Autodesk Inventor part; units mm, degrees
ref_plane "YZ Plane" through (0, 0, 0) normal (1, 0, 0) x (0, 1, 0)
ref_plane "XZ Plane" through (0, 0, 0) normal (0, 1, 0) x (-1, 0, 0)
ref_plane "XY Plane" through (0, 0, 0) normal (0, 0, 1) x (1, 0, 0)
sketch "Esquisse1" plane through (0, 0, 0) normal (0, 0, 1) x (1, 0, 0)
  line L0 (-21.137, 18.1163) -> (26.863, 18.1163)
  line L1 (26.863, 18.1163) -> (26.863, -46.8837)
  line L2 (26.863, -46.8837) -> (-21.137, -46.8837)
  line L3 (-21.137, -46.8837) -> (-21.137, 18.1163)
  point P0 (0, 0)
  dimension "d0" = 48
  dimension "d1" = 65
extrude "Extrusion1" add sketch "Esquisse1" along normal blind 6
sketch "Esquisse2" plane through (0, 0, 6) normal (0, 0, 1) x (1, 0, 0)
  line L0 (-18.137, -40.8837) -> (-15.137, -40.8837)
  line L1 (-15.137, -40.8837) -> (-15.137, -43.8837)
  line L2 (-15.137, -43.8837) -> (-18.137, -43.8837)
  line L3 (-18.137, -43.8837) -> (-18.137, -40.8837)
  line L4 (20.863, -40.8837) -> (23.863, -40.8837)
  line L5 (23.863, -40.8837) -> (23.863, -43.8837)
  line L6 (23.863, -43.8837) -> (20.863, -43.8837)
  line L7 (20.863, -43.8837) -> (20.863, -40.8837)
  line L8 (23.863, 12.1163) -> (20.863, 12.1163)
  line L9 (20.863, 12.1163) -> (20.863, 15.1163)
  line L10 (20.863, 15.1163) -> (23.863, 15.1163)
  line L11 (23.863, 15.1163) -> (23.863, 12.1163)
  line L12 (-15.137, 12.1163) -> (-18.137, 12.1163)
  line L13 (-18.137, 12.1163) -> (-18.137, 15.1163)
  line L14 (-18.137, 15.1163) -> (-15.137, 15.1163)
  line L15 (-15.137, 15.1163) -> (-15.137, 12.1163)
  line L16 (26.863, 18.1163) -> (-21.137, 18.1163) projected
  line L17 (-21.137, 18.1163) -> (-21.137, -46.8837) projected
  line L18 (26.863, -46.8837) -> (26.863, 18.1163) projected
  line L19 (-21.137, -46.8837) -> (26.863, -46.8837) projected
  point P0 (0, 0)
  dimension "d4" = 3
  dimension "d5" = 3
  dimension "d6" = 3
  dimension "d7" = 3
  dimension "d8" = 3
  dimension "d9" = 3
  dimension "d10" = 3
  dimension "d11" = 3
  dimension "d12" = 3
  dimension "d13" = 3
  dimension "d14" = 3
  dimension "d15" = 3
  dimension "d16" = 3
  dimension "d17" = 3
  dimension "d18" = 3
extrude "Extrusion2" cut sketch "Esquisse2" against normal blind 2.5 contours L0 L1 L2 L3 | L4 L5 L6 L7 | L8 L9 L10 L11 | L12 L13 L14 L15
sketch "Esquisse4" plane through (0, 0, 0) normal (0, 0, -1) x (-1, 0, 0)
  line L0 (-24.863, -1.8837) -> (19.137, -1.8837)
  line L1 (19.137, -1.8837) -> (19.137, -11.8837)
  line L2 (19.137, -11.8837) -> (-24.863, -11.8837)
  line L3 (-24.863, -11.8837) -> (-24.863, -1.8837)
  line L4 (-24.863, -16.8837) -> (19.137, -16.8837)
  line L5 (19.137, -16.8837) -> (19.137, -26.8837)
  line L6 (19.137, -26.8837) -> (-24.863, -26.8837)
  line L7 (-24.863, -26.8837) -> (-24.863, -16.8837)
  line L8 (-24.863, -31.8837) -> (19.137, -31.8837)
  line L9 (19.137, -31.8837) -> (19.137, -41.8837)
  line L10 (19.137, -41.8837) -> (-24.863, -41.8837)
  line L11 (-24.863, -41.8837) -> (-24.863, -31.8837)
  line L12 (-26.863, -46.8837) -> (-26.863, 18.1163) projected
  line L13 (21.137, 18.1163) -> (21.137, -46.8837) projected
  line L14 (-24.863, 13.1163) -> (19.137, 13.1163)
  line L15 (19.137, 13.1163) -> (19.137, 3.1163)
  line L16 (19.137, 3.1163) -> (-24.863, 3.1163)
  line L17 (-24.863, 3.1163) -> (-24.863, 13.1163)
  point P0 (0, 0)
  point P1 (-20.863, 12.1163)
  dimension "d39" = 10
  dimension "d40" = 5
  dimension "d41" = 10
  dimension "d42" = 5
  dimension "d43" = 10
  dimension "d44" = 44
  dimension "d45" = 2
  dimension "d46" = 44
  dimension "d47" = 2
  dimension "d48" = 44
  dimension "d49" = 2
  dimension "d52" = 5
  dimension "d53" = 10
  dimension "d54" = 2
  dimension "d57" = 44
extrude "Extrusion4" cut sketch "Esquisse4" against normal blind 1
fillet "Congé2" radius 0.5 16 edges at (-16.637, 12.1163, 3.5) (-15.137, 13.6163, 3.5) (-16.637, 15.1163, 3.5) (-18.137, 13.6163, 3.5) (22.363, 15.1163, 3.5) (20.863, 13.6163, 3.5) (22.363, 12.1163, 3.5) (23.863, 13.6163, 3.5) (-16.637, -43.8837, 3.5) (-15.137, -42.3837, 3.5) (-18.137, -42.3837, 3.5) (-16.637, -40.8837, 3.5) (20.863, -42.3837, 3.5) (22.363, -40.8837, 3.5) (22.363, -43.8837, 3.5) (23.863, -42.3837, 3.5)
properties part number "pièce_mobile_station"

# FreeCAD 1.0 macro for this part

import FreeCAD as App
import Part
import Sketcher
from FreeCAD import Vector
Q = App.Units.Quantity


def edges_at(feature, points):
    """Names of the edges that pass closest to the given points."""
    edges = feature.Shape.Edges
    near = lambda p: min(range(len(edges)), key=lambda i: edges[i].distToShape(Part.Vertex(*p))[0])
    return sorted({f"Edge{near(p) + 1}" for p in points})

doc = App.newDocument("Part")
body = doc.addObject("PartDesign::Body", "Body")

sketch1 = body.newObject("Sketcher::SketchObject", "Sketch")
sketch1.AttachmentSupport = (doc.getObject("XY_Plane"), [""])
sketch1.MapMode = "FlatFace"
sketch1.addGeometry(Part.LineSegment(Vector(27, 18, 0), Vector(-21, 18, 0)), False)
sketch1.addGeometry(Part.LineSegment(Vector(-21, 18, 0), Vector(-21, -47, 0)), False)
sketch1.addGeometry(Part.LineSegment(Vector(-21, -47, 0), Vector(27, -47, 0)), False)
sketch1.addGeometry(Part.LineSegment(Vector(27, -47, 0), Vector(27, 18, 0)), False)
sketch1.addConstraint(Sketcher.Constraint("Coincident", 0, 2, 1, 1))
sketch1.addConstraint(Sketcher.Constraint("Coincident", 1, 2, 2, 1))
sketch1.addConstraint(Sketcher.Constraint("Coincident", 2, 2, 3, 1))
sketch1.addConstraint(Sketcher.Constraint("Coincident", 3, 2, 0, 1))
sketch1.addConstraint(Sketcher.Constraint("Horizontal", 0))
sketch1.addConstraint(Sketcher.Constraint("Vertical", 1))
sketch1.addConstraint(Sketcher.Constraint("Horizontal", 2))
sketch1.addConstraint(Sketcher.Constraint("Vertical", 3))
sketch1.addConstraint(Sketcher.Constraint("DistanceX", 0, 2, 0, 1, Q("48 mm")))
sketch1.addConstraint(Sketcher.Constraint("DistanceY", 1, 2, 1, 1, Q("65 mm")))
sketch1.addConstraint(Sketcher.Constraint("DistanceX", 0, 2, -1, 1, Q("21.137 mm")))
sketch1.addConstraint(Sketcher.Constraint("DistanceY", -1, 1, 0, 2, Q("18.1163 mm")))
pad1 = body.newObject("PartDesign::Pad", "Pad")
pad1.Profile = sketch1
pad1.Length = 6

sketch2 = body.newObject("Sketcher::SketchObject", "Sketch001")
sketch2.AttachmentSupport = (doc.getObject("XY_Plane"), [""])
sketch2.MapMode = "FlatFace"
sketch2.AttachmentOffset = App.Placement(Vector(0, 0, 6), App.Rotation())
sketch2.addGeometry(Part.LineSegment(Vector(-15.1, -40.9, 0), Vector(-18.1, -40.9, 0)), False)
sketch2.addGeometry(Part.LineSegment(Vector(-18.1, -40.9, 0), Vector(-18.1, -43.9, 0)), False)
sketch2.addGeometry(Part.LineSegment(Vector(-18.1, -43.9, 0), Vector(-15.1, -43.9, 0)), False)
sketch2.addGeometry(Part.LineSegment(Vector(-15.1, -43.9, 0), Vector(-15.1, -40.9, 0)), False)
sketch2.addGeometry(Part.LineSegment(Vector(23.9, -40.9, 0), Vector(20.9, -40.9, 0)), False)
sketch2.addGeometry(Part.LineSegment(Vector(20.9, -40.9, 0), Vector(20.9, -43.9, 0)), False)
sketch2.addGeometry(Part.LineSegment(Vector(20.9, -43.9, 0), Vector(23.9, -43.9, 0)), False)
sketch2.addGeometry(Part.LineSegment(Vector(23.9, -43.9, 0), Vector(23.9, -40.9, 0)), False)
sketch2.addGeometry(Part.LineSegment(Vector(20.9, 12.1, 0), Vector(23.9, 12.1, 0)), False)
sketch2.addGeometry(Part.LineSegment(Vector(23.9, 12.1, 0), Vector(23.9, 15.1, 0)), False)
sketch2.addGeometry(Part.LineSegment(Vector(23.9, 15.1, 0), Vector(20.9, 15.1, 0)), False)
sketch2.addGeometry(Part.LineSegment(Vector(20.9, 15.1, 0), Vector(20.9, 12.1, 0)), False)
sketch2.addGeometry(Part.LineSegment(Vector(-18.1, 12.1, 0), Vector(-15.1, 12.1, 0)), False)
sketch2.addGeometry(Part.LineSegment(Vector(-15.1, 12.1, 0), Vector(-15.1, 15.1, 0)), False)
sketch2.addGeometry(Part.LineSegment(Vector(-15.1, 15.1, 0), Vector(-18.1, 15.1, 0)), False)
sketch2.addGeometry(Part.LineSegment(Vector(-18.1, 15.1, 0), Vector(-18.1, 12.1, 0)), False)
sketch2.addConstraint(Sketcher.Constraint("Coincident", 0, 2, 1, 1))
sketch2.addConstraint(Sketcher.Constraint("Coincident", 1, 2, 2, 1))
sketch2.addConstraint(Sketcher.Constraint("Coincident", 2, 2, 3, 1))
sketch2.addConstraint(Sketcher.Constraint("Coincident", 3, 2, 0, 1))
sketch2.addConstraint(Sketcher.Constraint("Coincident", 4, 2, 5, 1))
sketch2.addConstraint(Sketcher.Constraint("Coincident", 5, 2, 6, 1))
sketch2.addConstraint(Sketcher.Constraint("Coincident", 6, 2, 7, 1))
sketch2.addConstraint(Sketcher.Constraint("Coincident", 7, 2, 4, 1))
sketch2.addConstraint(Sketcher.Constraint("Coincident", 8, 2, 9, 1))
sketch2.addConstraint(Sketcher.Constraint("Coincident", 9, 2, 10, 1))
sketch2.addConstraint(Sketcher.Constraint("Coincident", 10, 2, 11, 1))
sketch2.addConstraint(Sketcher.Constraint("Coincident", 11, 2, 8, 1))
sketch2.addConstraint(Sketcher.Constraint("Coincident", 12, 2, 13, 1))
sketch2.addConstraint(Sketcher.Constraint("Coincident", 13, 2, 14, 1))
sketch2.addConstraint(Sketcher.Constraint("Coincident", 14, 2, 15, 1))
sketch2.addConstraint(Sketcher.Constraint("Coincident", 15, 2, 12, 1))
sketch2.addConstraint(Sketcher.Constraint("Horizontal", 0))
sketch2.addConstraint(Sketcher.Constraint("Vertical", 1))
sketch2.addConstraint(Sketcher.Constraint("Horizontal", 2))
sketch2.addConstraint(Sketcher.Constraint("Vertical", 3))
sketch2.addConstraint(Sketcher.Constraint("Horizontal", 4))
sketch2.addConstraint(Sketcher.Constraint("Vertical", 5))
sketch2.addConstraint(Sketcher.Constraint("Horizontal", 6))
sketch2.addConstraint(Sketcher.Constraint("Vertical", 7))
sketch2.addConstraint(Sketcher.Constraint("Horizontal", 8))
sketch2.addConstraint(Sketcher.Constraint("Vertical", 9))
sketch2.addConstraint(Sketcher.Constraint("Horizontal", 10))
sketch2.addConstraint(Sketcher.Constraint("Vertical", 11))
sketch2.addConstraint(Sketcher.Constraint("Horizontal", 12))
sketch2.addConstraint(Sketcher.Constraint("Vertical", 13))
sketch2.addConstraint(Sketcher.Constraint("Horizontal", 14))
sketch2.addConstraint(Sketcher.Constraint("Vertical", 15))
sketch2.addConstraint(Sketcher.Constraint("Horizontal", 3, 2, 4, 2))
sketch2.addConstraint(Sketcher.Constraint("Horizontal", 2, 2, 5, 2))
sketch2.addConstraint(Sketcher.Constraint("Horizontal", 11, 2, 12, 2))
sketch2.addConstraint(Sketcher.Constraint("Horizontal", 10, 2, 13, 2))
sketch2.addConstraint(Sketcher.Constraint("Vertical", 7, 2, 8, 2))
sketch2.addConstraint(Sketcher.Constraint("Vertical", 5, 2, 10, 2))
sketch2.addConstraint(Sketcher.Constraint("Vertical", 3, 2, 12, 2))
sketch2.addConstraint(Sketcher.Constraint("Vertical", 1, 2, 14, 2))
sketch2.addConstraint(Sketcher.Constraint("Equal", 2, 4))
sketch2.addConstraint(Sketcher.Constraint("Equal", 14, 1))
sketch2.addConstraint(Sketcher.Constraint("Equal", 7, 9))
sketch2.addConstraint(Sketcher.Constraint("DistanceX", 0, 2, 0, 1, Q("3 mm")))
sketch2.addConstraint(Sketcher.Constraint("DistanceX", 3, 2, 4, 2, Q("36 mm")))
sketch2.addConstraint(Sketcher.Constraint("DistanceY", 7, 2, 8, 2, Q("53 mm")))
sketch2.addConstraint(Sketcher.Constraint("DistanceX", 0, 2, -1, 1, Q("18.137 mm")))
sketch2.addConstraint(Sketcher.Constraint("DistanceY", 0, 2, -1, 1, Q("40.8837 mm")))
pocket1 = body.newObject("PartDesign::Pocket", "Pocket")
pocket1.Profile = sketch2
pocket1.Length = 2.5

sketch3 = body.newObject("Sketcher::SketchObject", "Sketch002")
sketch3.AttachmentSupport = (doc.getObject("XY_Plane"), [""])
sketch3.MapMode = "FlatFace"
sketch3.addGeometry(Part.LineSegment(Vector(-19, -2, 0), Vector(25, -2, 0)), False)
sketch3.addGeometry(Part.LineSegment(Vector(25, -2, 0), Vector(25, -12, 0)), False)
sketch3.addGeometry(Part.LineSegment(Vector(25, -12, 0), Vector(-19, -12, 0)), False)
sketch3.addGeometry(Part.LineSegment(Vector(-19, -12, 0), Vector(-19, -2, 0)), False)
sketch3.addGeometry(Part.LineSegment(Vector(-19, -17, 0), Vector(25, -17, 0)), False)
sketch3.addGeometry(Part.LineSegment(Vector(25, -17, 0), Vector(25, -27, 0)), False)
sketch3.addGeometry(Part.LineSegment(Vector(25, -27, 0), Vector(-19, -27, 0)), False)
sketch3.addGeometry(Part.LineSegment(Vector(-19, -27, 0), Vector(-19, -17, 0)), False)
sketch3.addGeometry(Part.LineSegment(Vector(-19, -32, 0), Vector(25, -32, 0)), False)
sketch3.addGeometry(Part.LineSegment(Vector(25, -32, 0), Vector(25, -42, 0)), False)
sketch3.addGeometry(Part.LineSegment(Vector(25, -42, 0), Vector(-19, -42, 0)), False)
sketch3.addGeometry(Part.LineSegment(Vector(-19, -42, 0), Vector(-19, -32, 0)), False)
sketch3.addGeometry(Part.LineSegment(Vector(-19, 13, 0), Vector(25, 13, 0)), False)
sketch3.addGeometry(Part.LineSegment(Vector(25, 13, 0), Vector(25, 3, 0)), False)
sketch3.addGeometry(Part.LineSegment(Vector(25, 3, 0), Vector(-19, 3, 0)), False)
sketch3.addGeometry(Part.LineSegment(Vector(-19, 3, 0), Vector(-19, 13, 0)), False)
sketch3.addConstraint(Sketcher.Constraint("Coincident", 0, 2, 1, 1))
sketch3.addConstraint(Sketcher.Constraint("Coincident", 1, 2, 2, 1))
sketch3.addConstraint(Sketcher.Constraint("Coincident", 2, 2, 3, 1))
sketch3.addConstraint(Sketcher.Constraint("Coincident", 3, 2, 0, 1))
sketch3.addConstraint(Sketcher.Constraint("Coincident", 4, 2, 5, 1))
sketch3.addConstraint(Sketcher.Constraint("Coincident", 5, 2, 6, 1))
sketch3.addConstraint(Sketcher.Constraint("Coincident", 6, 2, 7, 1))
sketch3.addConstraint(Sketcher.Constraint("Coincident", 7, 2, 4, 1))
sketch3.addConstraint(Sketcher.Constraint("Coincident", 8, 2, 9, 1))
sketch3.addConstraint(Sketcher.Constraint("Coincident", 9, 2, 10, 1))
sketch3.addConstraint(Sketcher.Constraint("Coincident", 10, 2, 11, 1))
sketch3.addConstraint(Sketcher.Constraint("Coincident", 11, 2, 8, 1))
sketch3.addConstraint(Sketcher.Constraint("Coincident", 12, 2, 13, 1))
sketch3.addConstraint(Sketcher.Constraint("Coincident", 13, 2, 14, 1))
sketch3.addConstraint(Sketcher.Constraint("Coincident", 14, 2, 15, 1))
sketch3.addConstraint(Sketcher.Constraint("Coincident", 15, 2, 12, 1))
sketch3.addConstraint(Sketcher.Constraint("Horizontal", 0))
sketch3.addConstraint(Sketcher.Constraint("Vertical", 1))
sketch3.addConstraint(Sketcher.Constraint("Horizontal", 2))
sketch3.addConstraint(Sketcher.Constraint("Vertical", 3))
sketch3.addConstraint(Sketcher.Constraint("Horizontal", 4))
sketch3.addConstraint(Sketcher.Constraint("Vertical", 5))
sketch3.addConstraint(Sketcher.Constraint("Horizontal", 6))
sketch3.addConstraint(Sketcher.Constraint("Vertical", 7))
sketch3.addConstraint(Sketcher.Constraint("Horizontal", 8))
sketch3.addConstraint(Sketcher.Constraint("Vertical", 9))
sketch3.addConstraint(Sketcher.Constraint("Horizontal", 10))
sketch3.addConstraint(Sketcher.Constraint("Vertical", 11))
sketch3.addConstraint(Sketcher.Constraint("Horizontal", 12))
sketch3.addConstraint(Sketcher.Constraint("Vertical", 13))
sketch3.addConstraint(Sketcher.Constraint("Horizontal", 14))
sketch3.addConstraint(Sketcher.Constraint("Vertical", 15))
sketch3.addConstraint(Sketcher.Constraint("Vertical", 1, 2, 4, 2))
sketch3.addConstraint(Sketcher.Constraint("Vertical", 3, 2, 6, 2))
sketch3.addConstraint(Sketcher.Constraint("Vertical", 5, 2, 8, 2))
sketch3.addConstraint(Sketcher.Constraint("Vertical", 7, 2, 10, 2))
sketch3.addConstraint(Sketcher.Constraint("Vertical", 9, 2, 12, 2))
sketch3.addConstraint(Sketcher.Constraint("Vertical", 11, 2, 14, 2))
sketch3.addConstraint(Sketcher.Constraint("Equal", 3, 5))
sketch3.addConstraint(Sketcher.Constraint("Equal", 7, 9))
sketch3.addConstraint(Sketcher.Constraint("Equal", 11, 13))
sketch3.addConstraint(Sketcher.Constraint("DistanceX", 0, 1, 0, 2, Q("44 mm")))
sketch3.addConstraint(Sketcher.Constraint("DistanceY", 1, 2, 1, 1, Q("10 mm")))
sketch3.addConstraint(Sketcher.Constraint("DistanceY", 4, 2, 1, 2, Q("5 mm")))
sketch3.addConstraint(Sketcher.Constraint("DistanceY", 8, 2, 5, 2, Q("5 mm")))
sketch3.addConstraint(Sketcher.Constraint("DistanceY", 0, 2, 13, 2, Q("5 mm")))
sketch3.addConstraint(Sketcher.Constraint("DistanceX", -1, 1, 0, 2, Q("24.863 mm")))
sketch3.addConstraint(Sketcher.Constraint("DistanceY", 0, 2, -1, 1, Q("1.8837 mm")))
pocket2 = body.newObject("PartDesign::Pocket", "Pocket001")
pocket2.Profile = sketch3
pocket2.Length = 1
pocket2.Reversed = True
doc.recompute()

fillet = body.newObject("PartDesign::Fillet", "Fillet")
fillet.Base = (pocket2, edges_at(pocket2, [
    (-16.637, 12.116, 3.5),
    (-15.137, 13.616, 3.5),
    (-16.637, 15.116, 3.5),
    (-18.137, 13.616, 3.5),
    (22.363, 15.116, 3.5),
    (20.863, 13.616, 3.5),
    (22.363, 12.116, 3.5),
    (23.863, 13.616, 3.5),
    (-16.637, -43.884, 3.5),
    (-15.137, -42.384, 3.5),
    (-18.137, -42.384, 3.5),
    (-16.637, -40.884, 3.5),
    (20.863, -42.384, 3.5),
    (22.363, -40.884, 3.5),
    (22.363, -43.884, 3.5),
    (23.863, -42.384, 3.5),
]))
fillet.Radius = 0.5

doc.recompute()
